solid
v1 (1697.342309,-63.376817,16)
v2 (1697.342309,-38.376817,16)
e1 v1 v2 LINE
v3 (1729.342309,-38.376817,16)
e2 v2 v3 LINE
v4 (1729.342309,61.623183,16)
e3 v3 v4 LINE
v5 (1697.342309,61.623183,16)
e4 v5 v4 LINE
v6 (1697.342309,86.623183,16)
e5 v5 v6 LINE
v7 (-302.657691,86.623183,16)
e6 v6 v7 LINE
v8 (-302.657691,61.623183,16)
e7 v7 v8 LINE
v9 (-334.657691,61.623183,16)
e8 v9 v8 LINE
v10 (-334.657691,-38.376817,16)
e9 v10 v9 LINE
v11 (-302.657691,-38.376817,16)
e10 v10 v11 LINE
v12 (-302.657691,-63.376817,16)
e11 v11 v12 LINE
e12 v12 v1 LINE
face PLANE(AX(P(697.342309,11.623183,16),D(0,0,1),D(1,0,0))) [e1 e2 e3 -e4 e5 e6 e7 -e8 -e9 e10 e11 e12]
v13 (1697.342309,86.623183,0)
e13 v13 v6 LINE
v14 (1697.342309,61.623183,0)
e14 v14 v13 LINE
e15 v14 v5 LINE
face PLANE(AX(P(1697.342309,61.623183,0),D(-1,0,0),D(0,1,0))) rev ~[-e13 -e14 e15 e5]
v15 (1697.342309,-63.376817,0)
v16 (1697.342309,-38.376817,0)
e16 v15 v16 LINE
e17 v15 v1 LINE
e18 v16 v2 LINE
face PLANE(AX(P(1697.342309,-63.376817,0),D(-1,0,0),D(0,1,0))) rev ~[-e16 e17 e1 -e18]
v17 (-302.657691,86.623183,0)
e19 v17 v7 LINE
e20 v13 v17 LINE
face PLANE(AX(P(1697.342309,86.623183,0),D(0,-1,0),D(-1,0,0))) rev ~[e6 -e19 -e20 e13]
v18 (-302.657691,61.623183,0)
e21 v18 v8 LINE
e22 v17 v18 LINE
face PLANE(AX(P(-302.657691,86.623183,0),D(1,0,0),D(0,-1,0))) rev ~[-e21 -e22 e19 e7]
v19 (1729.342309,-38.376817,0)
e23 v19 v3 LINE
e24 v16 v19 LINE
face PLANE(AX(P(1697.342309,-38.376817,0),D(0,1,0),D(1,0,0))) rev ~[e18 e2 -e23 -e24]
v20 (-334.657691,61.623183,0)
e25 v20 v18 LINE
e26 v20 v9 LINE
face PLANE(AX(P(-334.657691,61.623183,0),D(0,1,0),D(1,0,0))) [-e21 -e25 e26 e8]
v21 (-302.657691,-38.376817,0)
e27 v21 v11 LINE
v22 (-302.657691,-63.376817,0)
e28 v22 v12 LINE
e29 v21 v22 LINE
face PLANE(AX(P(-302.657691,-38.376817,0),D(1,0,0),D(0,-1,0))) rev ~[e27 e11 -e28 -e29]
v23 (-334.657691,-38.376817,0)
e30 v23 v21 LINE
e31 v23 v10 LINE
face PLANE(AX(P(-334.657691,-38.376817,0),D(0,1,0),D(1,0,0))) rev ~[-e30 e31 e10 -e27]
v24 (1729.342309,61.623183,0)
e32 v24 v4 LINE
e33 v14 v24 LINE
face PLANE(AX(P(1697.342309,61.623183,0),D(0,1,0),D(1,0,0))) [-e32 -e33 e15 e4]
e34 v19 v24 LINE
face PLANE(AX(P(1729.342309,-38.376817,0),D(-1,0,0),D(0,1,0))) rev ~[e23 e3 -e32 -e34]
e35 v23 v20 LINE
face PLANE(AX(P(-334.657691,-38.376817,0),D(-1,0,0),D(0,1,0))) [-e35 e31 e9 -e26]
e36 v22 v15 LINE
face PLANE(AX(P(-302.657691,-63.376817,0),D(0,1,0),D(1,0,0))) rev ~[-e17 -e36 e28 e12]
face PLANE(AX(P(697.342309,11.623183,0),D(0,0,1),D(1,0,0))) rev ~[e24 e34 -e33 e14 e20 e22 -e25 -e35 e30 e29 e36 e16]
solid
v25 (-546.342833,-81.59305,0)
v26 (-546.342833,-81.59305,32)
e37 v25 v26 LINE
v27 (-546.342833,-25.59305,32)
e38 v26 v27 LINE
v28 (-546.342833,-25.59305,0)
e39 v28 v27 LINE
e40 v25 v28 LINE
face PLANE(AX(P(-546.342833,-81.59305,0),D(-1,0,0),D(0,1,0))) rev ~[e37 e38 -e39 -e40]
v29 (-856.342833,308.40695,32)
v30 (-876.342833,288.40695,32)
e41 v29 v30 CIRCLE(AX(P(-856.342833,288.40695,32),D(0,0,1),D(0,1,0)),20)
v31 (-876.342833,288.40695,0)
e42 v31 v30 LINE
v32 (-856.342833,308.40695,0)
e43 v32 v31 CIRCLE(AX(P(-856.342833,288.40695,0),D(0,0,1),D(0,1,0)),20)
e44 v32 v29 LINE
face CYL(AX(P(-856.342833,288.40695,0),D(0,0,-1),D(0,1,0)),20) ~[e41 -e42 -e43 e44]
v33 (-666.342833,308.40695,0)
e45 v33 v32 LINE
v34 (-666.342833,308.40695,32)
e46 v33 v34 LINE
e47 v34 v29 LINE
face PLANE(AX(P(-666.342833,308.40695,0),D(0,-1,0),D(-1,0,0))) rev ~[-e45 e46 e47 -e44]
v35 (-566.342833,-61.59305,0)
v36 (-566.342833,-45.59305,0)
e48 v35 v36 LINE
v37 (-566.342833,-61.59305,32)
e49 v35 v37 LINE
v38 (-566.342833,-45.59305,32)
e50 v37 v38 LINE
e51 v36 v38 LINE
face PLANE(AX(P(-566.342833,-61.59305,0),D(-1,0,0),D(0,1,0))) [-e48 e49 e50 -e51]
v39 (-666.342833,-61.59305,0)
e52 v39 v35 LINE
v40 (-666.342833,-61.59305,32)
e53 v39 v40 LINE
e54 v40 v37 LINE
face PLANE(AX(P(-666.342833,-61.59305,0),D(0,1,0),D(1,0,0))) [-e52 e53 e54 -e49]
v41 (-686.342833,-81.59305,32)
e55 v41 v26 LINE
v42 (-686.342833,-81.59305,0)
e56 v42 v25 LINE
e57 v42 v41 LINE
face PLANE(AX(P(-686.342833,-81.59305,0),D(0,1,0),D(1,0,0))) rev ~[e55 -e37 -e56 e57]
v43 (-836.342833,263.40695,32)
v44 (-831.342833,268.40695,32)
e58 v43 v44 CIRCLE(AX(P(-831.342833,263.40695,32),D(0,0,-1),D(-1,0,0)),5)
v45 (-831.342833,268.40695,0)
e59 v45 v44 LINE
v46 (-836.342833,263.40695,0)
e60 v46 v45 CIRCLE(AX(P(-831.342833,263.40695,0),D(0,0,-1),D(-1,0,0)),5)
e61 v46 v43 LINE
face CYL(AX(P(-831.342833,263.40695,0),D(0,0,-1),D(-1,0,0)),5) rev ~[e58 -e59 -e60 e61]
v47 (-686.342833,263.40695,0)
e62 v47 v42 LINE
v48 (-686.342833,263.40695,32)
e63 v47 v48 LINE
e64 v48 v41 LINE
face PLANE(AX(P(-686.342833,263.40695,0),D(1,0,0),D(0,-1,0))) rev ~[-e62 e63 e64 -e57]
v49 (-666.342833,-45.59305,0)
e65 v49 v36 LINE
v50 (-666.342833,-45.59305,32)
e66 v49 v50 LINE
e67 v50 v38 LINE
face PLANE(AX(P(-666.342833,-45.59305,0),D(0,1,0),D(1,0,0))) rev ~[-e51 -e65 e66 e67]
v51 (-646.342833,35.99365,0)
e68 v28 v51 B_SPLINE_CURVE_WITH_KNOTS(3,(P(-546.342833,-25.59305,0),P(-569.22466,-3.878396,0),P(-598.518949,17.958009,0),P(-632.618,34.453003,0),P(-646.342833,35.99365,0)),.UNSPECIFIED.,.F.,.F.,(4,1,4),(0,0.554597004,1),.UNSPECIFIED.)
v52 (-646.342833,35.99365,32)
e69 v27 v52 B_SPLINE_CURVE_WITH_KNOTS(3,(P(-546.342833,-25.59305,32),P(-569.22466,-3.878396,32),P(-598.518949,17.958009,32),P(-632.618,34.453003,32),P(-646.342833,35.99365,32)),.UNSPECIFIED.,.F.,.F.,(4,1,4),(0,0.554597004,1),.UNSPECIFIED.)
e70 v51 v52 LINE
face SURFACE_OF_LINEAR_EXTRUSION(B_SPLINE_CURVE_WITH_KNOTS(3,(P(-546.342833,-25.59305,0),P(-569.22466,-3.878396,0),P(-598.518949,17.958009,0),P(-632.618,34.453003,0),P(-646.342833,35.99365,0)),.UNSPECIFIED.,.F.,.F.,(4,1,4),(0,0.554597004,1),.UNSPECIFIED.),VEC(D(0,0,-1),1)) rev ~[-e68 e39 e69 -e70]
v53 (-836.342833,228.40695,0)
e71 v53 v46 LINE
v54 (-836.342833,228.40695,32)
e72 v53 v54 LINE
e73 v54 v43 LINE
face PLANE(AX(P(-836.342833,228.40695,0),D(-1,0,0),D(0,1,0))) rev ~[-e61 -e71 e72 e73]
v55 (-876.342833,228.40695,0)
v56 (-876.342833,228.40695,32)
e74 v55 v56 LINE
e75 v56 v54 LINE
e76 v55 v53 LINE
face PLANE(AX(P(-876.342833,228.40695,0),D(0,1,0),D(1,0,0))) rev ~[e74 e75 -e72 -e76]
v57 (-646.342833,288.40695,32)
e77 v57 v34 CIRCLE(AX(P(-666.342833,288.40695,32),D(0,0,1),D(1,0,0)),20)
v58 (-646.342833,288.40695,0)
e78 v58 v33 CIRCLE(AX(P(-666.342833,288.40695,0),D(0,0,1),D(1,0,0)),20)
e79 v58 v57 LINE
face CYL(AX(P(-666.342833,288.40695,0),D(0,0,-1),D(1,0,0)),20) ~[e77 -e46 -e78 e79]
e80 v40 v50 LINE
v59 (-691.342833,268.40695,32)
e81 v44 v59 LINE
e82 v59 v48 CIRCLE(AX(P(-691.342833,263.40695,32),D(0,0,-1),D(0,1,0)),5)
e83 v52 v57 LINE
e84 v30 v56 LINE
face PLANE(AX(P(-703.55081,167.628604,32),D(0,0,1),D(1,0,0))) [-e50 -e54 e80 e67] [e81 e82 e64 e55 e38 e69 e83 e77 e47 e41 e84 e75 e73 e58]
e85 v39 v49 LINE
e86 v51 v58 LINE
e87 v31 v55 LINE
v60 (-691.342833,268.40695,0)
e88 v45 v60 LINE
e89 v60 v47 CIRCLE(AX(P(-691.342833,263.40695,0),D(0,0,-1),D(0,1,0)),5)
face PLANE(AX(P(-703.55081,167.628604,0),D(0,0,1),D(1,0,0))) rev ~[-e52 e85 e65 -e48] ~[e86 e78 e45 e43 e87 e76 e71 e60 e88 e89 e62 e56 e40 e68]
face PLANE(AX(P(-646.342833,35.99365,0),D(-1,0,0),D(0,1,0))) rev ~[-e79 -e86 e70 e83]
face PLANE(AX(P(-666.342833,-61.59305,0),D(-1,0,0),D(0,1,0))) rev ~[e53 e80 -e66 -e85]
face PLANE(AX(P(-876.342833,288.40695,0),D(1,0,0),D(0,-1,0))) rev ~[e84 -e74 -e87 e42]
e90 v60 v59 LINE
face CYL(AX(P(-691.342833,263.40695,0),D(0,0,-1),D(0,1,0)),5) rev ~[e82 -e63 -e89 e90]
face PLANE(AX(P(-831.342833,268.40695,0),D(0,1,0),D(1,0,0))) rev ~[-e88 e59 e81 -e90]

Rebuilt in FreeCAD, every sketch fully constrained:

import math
import FreeCAD as App
import Part
import Sketcher
from FreeCAD import Vector


def add_polygon(sketch, points):
    """Adds a closed chain of lines whose ends are joined by coincident constraints."""
    first, n = sketch.GeometryCount, len(points)
    for a, b in zip(points, points[1:] + points[:1]):
        sketch.addGeometry(Part.LineSegment(App.Vector(*a, 0), App.Vector(*b, 0)), False)
    for i in range(n):
        sketch.addConstraint(Sketcher.Constraint("Coincident", first + i, 2, first + (i + 1) % n, 1))

doc = App.newDocument("Part")
body = doc.addObject("PartDesign::Body", "Body")

sketch1 = body.newObject("Sketcher::SketchObject", "Sketch")
sketch1.AttachmentSupport = (doc.getObject("XY_Plane"), [""])
sketch1.MapMode = "FlatFace"
sketch1.addGeometry(Part.LineSegment(Vector(-686.342833, 263.40695, 0), Vector(-686.342833, -81.59305, 0)), False)
sketch1.addGeometry(Part.LineSegment(Vector(-686.342833, -81.59305, 0), Vector(-546.342833, -81.59305, 0)), False)
sketch1.addGeometry(Part.LineSegment(Vector(-546.342833, -81.59305, 0), Vector(-546.342833, -25.59305, 0)), False)
sketch1.addGeometry(Part.BSplineCurve([Vector(-546.342833, -25.59305, 0), Vector(-569.22466, -3.878396, 0), Vector(-598.518949, 17.958009, 0), Vector(-632.618, 34.453003, 0), Vector(-646.342833, 35.99365, 0)], [4, 1, 4], [0, 0.554597004, 1], False, 3, [1, 1, 1, 1, 1], False), False)
sketch1.addGeometry(Part.LineSegment(Vector(-646.342833, 35.99365, 0), Vector(-646.342833, 288.40695, 0)), False)
sketch1.addGeometry(Part.ArcOfCircle(Part.Circle(Vector(-666.342833, 288.40695, 0), Vector(0, 0, 1), 20), math.radians(0), math.radians(90)), False)
sketch1.addGeometry(Part.LineSegment(Vector(-666.342833, 308.40695, 0), Vector(-856.342833, 308.40695, 0)), False)
sketch1.addGeometry(Part.ArcOfCircle(Part.Circle(Vector(-856.342833, 288.40695, 0), Vector(0, 0, 1), 20), math.radians(90), math.radians(180)), False)
sketch1.addGeometry(Part.LineSegment(Vector(-876.342833, 288.40695, 0), Vector(-876.342833, 228.40695, 0)), False)
sketch1.addGeometry(Part.LineSegment(Vector(-876.342833, 228.40695, 0), Vector(-836.342833, 228.40695, 0)), False)
sketch1.addGeometry(Part.LineSegment(Vector(-836.342833, 228.40695, 0), Vector(-836.342833, 263.40695, 0)), False)
sketch1.addGeometry(Part.ArcOfCircle(Part.Circle(Vector(-831.342833, 263.40695, 0), Vector(0, 0, 1), 5), math.radians(90), math.radians(180)), False)
sketch1.addGeometry(Part.LineSegment(Vector(-831.342833, 268.40695, 0), Vector(-691.342833, 268.40695, 0)), False)
sketch1.addGeometry(Part.ArcOfCircle(Part.Circle(Vector(-691.342833, 263.40695, 0), Vector(0, 0, 1), 5), math.radians(0), math.radians(90)), False)
add_polygon(sketch1, [(-566.342833, -61.59305), (-666.342833, -61.59305), (-666.342833, -45.59305), (-566.342833, -45.59305)])
sketch1.addConstraint([
    Sketcher.Constraint("Block", 3),
    Sketcher.Constraint("Coincident", 0, 2, 1, 1),
    Sketcher.Constraint("Coincident", 1, 2, 2, 1),
    Sketcher.Constraint("Coincident", 2, 2, 3, 1),
    Sketcher.Constraint("Coincident", 3, 2, 4, 1),
    Sketcher.Constraint("Tangent", 4, 2, 5, 1),
    Sketcher.Constraint("Tangent", 5, 2, 6, 1),
    Sketcher.Constraint("Tangent", 6, 2, 7, 1),
    Sketcher.Constraint("Tangent", 7, 2, 8, 1),
    Sketcher.Constraint("Coincident", 8, 2, 9, 1),
    Sketcher.Constraint("Coincident", 9, 2, 10, 1),
    Sketcher.Constraint("Tangent", 10, 2, 11, 2),
    Sketcher.Constraint("Tangent", 11, 1, 12, 1),
    Sketcher.Constraint("Tangent", 12, 2, 13, 2),
    Sketcher.Constraint("Tangent", 13, 1, 0, 1),
    Sketcher.Constraint("Vertical", 0),
    Sketcher.Constraint("Horizontal", 1),
    Sketcher.Constraint("Vertical", 2),
    Sketcher.Constraint("Vertical", 4),
    Sketcher.Constraint("Horizontal", 6),
    Sketcher.Constraint("Vertical", 8),
    Sketcher.Constraint("Horizontal", 9),
    Sketcher.Constraint("Vertical", 10),
    Sketcher.Constraint("Horizontal", 12),
    Sketcher.Constraint("Horizontal", 14),
    Sketcher.Constraint("Vertical", 15),
    Sketcher.Constraint("Horizontal", 16),
    Sketcher.Constraint("Vertical", 17),
    Sketcher.Constraint("Equal", 5, 7),
    Sketcher.Constraint("Equal", 11, 13),
    Sketcher.Constraint("Vertical", 5, 2, 14, 2),
    Sketcher.Constraint("Equal", 1, 12),
    Sketcher.Constraint("Radius", 5, 20.0),
    Sketcher.Constraint("Radius", 11, 5.0),
    Sketcher.Constraint("DistanceX", 1, 1, 1, 2, 140.0),
    Sketcher.Constraint("DistanceX", 6, 2, 6, 1, 190.0),
    Sketcher.Constraint("DistanceX", 14, 2, 14, 1, 100.0),
    Sketcher.Constraint("DistanceY", 0, 2, 0, 1, 345.0),
    Sketcher.Constraint("DistanceY", 2, 1, 2, 2, 56.0),
    Sketcher.Constraint("DistanceY", 8, 2, 8, 1, 60.0),
    Sketcher.Constraint("DistanceY", 10, 1, 10, 2, 35.0),
    Sketcher.Constraint("DistanceY", 15, 1, 15, 2, 16.0),
    Sketcher.Constraint("DistanceY", 0, 2, 14, 2, 20.0),
])
pad1 = body.newObject("PartDesign::Pad", "Pad")
pad1.Profile = sketch1
pad1.Length = 32
body2 = doc.addObject("PartDesign::Body", "Body001")

sketch2 = body2.newObject("Sketcher::SketchObject", "Sketch001")
sketch2.AttachmentSupport = (doc.getObject("XY_Plane001"), [""])
sketch2.MapMode = "FlatFace"
add_polygon(sketch2, [(1697, 87), (-303, 87), (-303, 62), (-335, 62), (-335, -38), (-303, -38), (-303, -63), (1697, -63), (1697, -38), (1729, -38), (1729, 62), (1697, 62)])
sketch2.addConstraint([
    Sketcher.Constraint("Horizontal", 0),
    Sketcher.Constraint("Vertical", 1),
    Sketcher.Constraint("Horizontal", 2),
    Sketcher.Constraint("Vertical", 3),
    Sketcher.Constraint("Horizontal", 4),
    Sketcher.Constraint("Vertical", 5),
    Sketcher.Constraint("Horizontal", 6),
    Sketcher.Constraint("Vertical", 7),
    Sketcher.Constraint("Horizontal", 8),
    Sketcher.Constraint("Vertical", 9),
    Sketcher.Constraint("Horizontal", 10),
    Sketcher.Constraint("Vertical", 11),
    Sketcher.Constraint("Horizontal", 4, 2, 7, 2),
    Sketcher.Constraint("Horizontal", 2, 2, 9, 2),
    Sketcher.Constraint("Vertical", 1, 2, 4, 2),
    Sketcher.Constraint("Vertical", 7, 2, 10, 2),
    Sketcher.Constraint("Equal", 4, 8),
    Sketcher.Constraint("Equal", 1, 5),
    Sketcher.Constraint("DistanceX", 0, 2, 0, 1, 2000.0),
    Sketcher.Constraint("DistanceX", 2, 2, 2, 1, 32.0),
    Sketcher.Constraint("DistanceY", 1, 2, 1, 1, 25.0),
    Sketcher.Constraint("DistanceY", 3, 2, 3, 1, 100.0),
    Sketcher.Constraint("DistanceX", 0, 2, -1, 1, 302.657691),
    Sketcher.Constraint("DistanceY", -1, 1, 0, 2, 86.623183),
])
pad2 = body2.newObject("PartDesign::Pad", "Pad001")
pad2.Profile = sketch2
pad2.Length = 16

doc.recompute()
